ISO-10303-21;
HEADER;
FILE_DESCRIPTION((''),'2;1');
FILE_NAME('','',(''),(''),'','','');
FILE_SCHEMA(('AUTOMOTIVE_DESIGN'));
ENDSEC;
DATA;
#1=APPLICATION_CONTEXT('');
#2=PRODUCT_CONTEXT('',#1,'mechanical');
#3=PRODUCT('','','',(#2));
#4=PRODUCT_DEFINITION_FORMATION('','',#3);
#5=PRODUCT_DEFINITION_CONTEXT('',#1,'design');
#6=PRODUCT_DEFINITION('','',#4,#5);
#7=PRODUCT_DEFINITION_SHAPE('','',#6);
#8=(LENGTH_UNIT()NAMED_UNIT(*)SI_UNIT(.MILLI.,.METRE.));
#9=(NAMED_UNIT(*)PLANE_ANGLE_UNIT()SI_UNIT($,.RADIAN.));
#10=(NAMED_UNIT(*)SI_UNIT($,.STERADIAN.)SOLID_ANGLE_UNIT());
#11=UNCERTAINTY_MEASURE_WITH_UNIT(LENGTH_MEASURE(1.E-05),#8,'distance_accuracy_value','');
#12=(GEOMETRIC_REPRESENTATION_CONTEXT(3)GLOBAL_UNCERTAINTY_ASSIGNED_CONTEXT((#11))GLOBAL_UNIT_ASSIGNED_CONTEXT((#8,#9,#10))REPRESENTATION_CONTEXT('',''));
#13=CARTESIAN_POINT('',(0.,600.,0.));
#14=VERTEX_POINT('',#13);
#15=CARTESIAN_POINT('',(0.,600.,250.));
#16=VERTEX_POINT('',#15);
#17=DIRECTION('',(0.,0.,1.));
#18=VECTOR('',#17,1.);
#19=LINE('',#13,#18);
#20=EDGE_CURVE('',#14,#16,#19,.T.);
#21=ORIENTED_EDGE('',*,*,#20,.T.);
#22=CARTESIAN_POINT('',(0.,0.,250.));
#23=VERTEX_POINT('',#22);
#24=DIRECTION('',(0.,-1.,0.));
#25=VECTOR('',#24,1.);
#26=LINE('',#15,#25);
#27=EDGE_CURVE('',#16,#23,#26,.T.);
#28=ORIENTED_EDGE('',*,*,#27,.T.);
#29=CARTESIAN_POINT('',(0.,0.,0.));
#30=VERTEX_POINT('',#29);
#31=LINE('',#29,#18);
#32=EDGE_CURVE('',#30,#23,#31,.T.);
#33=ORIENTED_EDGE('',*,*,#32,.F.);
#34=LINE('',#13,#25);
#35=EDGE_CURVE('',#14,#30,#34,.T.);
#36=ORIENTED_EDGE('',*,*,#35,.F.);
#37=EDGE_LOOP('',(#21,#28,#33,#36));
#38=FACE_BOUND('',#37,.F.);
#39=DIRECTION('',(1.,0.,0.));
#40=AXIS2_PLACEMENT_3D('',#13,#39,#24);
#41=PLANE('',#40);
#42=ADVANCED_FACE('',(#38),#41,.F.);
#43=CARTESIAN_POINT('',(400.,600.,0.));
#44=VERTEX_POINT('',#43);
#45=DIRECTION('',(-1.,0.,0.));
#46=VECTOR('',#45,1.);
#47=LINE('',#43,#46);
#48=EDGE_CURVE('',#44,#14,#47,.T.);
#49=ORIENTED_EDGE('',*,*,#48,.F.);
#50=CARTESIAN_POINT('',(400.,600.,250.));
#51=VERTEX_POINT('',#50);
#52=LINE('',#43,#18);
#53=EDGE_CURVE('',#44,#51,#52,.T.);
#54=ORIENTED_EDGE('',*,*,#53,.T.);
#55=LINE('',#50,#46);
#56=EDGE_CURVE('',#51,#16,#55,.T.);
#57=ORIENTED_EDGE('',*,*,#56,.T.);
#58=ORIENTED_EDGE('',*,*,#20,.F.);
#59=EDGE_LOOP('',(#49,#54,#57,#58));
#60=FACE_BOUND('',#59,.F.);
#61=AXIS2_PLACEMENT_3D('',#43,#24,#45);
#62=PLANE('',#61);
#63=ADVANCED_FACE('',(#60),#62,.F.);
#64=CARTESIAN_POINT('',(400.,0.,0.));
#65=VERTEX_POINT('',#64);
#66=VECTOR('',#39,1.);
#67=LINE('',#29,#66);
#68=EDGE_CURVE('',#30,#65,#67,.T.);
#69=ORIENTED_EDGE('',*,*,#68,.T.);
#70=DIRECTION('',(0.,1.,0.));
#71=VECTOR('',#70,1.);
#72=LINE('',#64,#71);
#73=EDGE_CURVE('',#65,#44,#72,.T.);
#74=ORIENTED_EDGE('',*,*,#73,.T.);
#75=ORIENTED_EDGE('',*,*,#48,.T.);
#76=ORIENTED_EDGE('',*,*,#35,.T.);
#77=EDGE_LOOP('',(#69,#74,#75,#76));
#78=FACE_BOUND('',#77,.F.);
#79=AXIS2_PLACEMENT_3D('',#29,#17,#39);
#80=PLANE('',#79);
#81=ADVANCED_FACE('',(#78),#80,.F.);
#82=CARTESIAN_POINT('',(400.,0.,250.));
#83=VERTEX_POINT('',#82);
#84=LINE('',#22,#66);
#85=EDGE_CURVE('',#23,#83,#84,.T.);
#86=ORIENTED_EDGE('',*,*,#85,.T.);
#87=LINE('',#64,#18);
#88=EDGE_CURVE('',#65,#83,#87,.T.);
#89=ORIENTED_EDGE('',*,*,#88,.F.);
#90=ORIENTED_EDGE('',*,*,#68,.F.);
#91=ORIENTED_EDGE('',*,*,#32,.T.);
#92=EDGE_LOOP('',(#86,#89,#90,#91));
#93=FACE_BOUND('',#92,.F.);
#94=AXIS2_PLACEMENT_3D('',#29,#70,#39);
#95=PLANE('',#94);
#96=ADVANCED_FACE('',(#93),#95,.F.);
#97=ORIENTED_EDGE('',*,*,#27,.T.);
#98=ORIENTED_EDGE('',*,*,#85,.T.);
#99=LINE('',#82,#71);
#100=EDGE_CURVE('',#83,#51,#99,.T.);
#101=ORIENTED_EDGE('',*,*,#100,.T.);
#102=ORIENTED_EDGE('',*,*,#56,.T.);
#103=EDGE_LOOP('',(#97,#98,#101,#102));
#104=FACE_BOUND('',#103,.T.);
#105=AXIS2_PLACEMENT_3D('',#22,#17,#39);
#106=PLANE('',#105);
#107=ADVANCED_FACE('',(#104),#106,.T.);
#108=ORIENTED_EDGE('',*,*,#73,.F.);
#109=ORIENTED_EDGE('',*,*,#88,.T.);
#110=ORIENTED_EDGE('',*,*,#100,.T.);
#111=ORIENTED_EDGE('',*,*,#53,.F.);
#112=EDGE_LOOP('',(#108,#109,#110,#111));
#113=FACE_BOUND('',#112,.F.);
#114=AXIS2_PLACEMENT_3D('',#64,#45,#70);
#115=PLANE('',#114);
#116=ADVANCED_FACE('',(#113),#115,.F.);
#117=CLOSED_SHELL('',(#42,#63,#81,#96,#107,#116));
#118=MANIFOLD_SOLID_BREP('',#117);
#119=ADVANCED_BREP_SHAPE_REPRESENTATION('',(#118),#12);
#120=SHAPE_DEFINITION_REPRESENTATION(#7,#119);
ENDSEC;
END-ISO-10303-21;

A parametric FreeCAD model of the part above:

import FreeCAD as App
import Part
import Sketcher

V = App.Vector


def add_polygon(sketch, points):
    """Adds a closed chain of lines whose ends are joined by coincident constraints."""
    first, n = sketch.GeometryCount, len(points)
    for a, b in zip(points, points[1:] + points[:1]):
        sketch.addGeometry(Part.LineSegment(App.Vector(*a, 0), App.Vector(*b, 0)), False)
    for i in range(n):
        sketch.addConstraint(Sketcher.Constraint("Coincident", first + i, 2, first + (i + 1) % n, 1))

doc = App.newDocument("Part")
params = doc.addObject("Spreadsheet::Sheet", "Params")
for row, (alias, value) in enumerate([
    ("sketch1_width", "400 mm"),
    ("sketch1_height", "600 mm"),
    ("pad1_length", "250 mm"),
], start=1):
    params.set(f"A{row}", alias)
    params.set(f"B{row}", "=" + value)
    params.setAlias(f"B{row}", alias)

body = doc.addObject("PartDesign::Body", "Body")

sketch1 = doc.addObject("Sketcher::SketchObject", "Sketch")
body.addObject(sketch1)
sketch1.AttachmentSupport = (doc.XY_Plane, [""])
sketch1.MapMode = "FlatFace"
add_polygon(sketch1, [(0, 600), (0, 0), (400, 0), (400, 600)])
sketch1.addConstraint([
    Sketcher.Constraint("Vertical", 0),
    Sketcher.Constraint("Horizontal", 1),
    Sketcher.Constraint("Vertical", 2),
    Sketcher.Constraint("Horizontal", 3),
    Sketcher.Constraint("Coincident", 0, 2, -1, 1),
    Sketcher.Constraint("DistanceX", 1, 1, 1, 2, 400.0),
    Sketcher.Constraint("DistanceY", 0, 2, 0, 1, 600.0),
])
sketch1.setExpression("Constraints[9]", "Params.sketch1_width")
sketch1.setExpression("Constraints[10]", "Params.sketch1_height")
pad1 = doc.addObject("PartDesign::Pad", "Pad")
body.addObject(pad1)
pad1.Profile = sketch1
pad1.setExpression("Length", "Params.pad1_length")

doc.recompute()
